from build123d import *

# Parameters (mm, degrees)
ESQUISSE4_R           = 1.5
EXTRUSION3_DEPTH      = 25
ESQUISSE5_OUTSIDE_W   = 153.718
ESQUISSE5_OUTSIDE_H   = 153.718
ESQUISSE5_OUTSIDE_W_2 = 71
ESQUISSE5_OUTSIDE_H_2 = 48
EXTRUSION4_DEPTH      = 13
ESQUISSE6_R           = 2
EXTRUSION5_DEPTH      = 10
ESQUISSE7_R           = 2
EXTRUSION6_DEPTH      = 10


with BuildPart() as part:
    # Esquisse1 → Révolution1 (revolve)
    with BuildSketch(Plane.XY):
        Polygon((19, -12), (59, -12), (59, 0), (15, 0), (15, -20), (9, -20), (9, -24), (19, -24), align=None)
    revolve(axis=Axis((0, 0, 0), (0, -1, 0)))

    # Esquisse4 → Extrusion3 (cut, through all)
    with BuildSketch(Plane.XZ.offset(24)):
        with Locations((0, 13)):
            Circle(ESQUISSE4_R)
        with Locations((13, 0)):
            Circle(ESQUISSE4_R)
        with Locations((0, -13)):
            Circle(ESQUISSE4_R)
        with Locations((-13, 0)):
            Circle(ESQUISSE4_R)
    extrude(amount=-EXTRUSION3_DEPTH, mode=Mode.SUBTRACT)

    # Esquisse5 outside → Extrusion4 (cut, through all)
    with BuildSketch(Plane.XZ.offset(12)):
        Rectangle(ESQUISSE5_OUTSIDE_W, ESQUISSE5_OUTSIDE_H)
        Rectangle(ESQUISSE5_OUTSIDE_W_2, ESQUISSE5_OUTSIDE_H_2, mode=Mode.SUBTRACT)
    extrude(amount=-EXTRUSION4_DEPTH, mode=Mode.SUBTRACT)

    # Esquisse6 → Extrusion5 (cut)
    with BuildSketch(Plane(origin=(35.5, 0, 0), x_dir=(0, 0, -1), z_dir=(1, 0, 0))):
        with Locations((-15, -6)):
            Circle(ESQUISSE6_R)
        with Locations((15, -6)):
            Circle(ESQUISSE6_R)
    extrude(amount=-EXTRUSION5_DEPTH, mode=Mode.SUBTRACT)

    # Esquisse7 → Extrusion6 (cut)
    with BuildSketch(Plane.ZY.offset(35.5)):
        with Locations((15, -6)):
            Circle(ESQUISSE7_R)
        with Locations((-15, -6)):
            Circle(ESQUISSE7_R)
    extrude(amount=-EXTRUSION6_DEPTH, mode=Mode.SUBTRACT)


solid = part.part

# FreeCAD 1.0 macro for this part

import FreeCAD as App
import Part
import Sketcher

V = App.Vector


def add_polygon(sketch, points):
    """Adds a closed chain of lines whose ends are joined by coincident constraints."""
    first, n = sketch.GeometryCount, len(points)
    for a, b in zip(points, points[1:] + points[:1]):
        sketch.addGeometry(Part.LineSegment(App.Vector(*a, 0), App.Vector(*b, 0)), False)
    for i in range(n):
        sketch.addConstraint(Sketcher.Constraint("Coincident", first + i, 2, first + (i + 1) % n, 1))

doc = App.newDocument("Part")
body = doc.addObject("PartDesign::Body", "Body")

# Sketch on XY plane
sketch1 = body.newObject("Sketcher::SketchObject", "Sketch")
sketch1.AttachmentSupport = (doc.getObject("XY_Plane"), [""])
sketch1.MapMode = "FlatFace"
add_polygon(sketch1, [(19, -12), (59, -12), (59, 0), (15, 0), (15, -20), (9, -20), (9, -24), (19, -24)])  # lines 0-7
sketch1.addConstraint(Sketcher.Constraint("Horizontal", 0))
sketch1.addConstraint(Sketcher.Constraint("Vertical", 1))
sketch1.addConstraint(Sketcher.Constraint("Horizontal", 2))
sketch1.addConstraint(Sketcher.Constraint("Vertical", 3))
sketch1.addConstraint(Sketcher.Constraint("Horizontal", 4))
sketch1.addConstraint(Sketcher.Constraint("Vertical", 5))
sketch1.addConstraint(Sketcher.Constraint("Horizontal", 6))
sketch1.addConstraint(Sketcher.Constraint("Vertical", 7))
sketch1.addConstraint(Sketcher.Constraint("PointOnObject", 1, 2, -1))
sketch1.addConstraint(Sketcher.Constraint("Equal", 1, 7))
sketch1.addConstraint(Sketcher.Constraint("DistanceX", 0, 1, 0, 2, 40.0))
sketch1.addConstraint(Sketcher.Constraint("DistanceX", 2, 2, 2, 1, 44.0))
sketch1.addConstraint(Sketcher.Constraint("DistanceX", 4, 2, 4, 1, 6.0))
sketch1.addConstraint(Sketcher.Constraint("DistanceY", 1, 1, 1, 2, 12.0))
sketch1.addConstraint(Sketcher.Constraint("DistanceY", 3, 2, 3, 1, 20.0))
sketch1.addConstraint(Sketcher.Constraint("DistanceX", -1, 1, 0, 2, 59.0))
revolution = body.newObject("PartDesign::Revolution", "Revolution")
revolution.Profile = sketch1
revolution.ReferenceAxis = (sketch1, ["V_Axis"])
revolution.Angle = 360

# Sketch on XZ plane
sketch2 = body.newObject("Sketcher::SketchObject", "Sketch001")
sketch2.AttachmentSupport = (doc.getObject("XZ_Plane"), [""])
sketch2.MapMode = "FlatFace"
sketch2.AttachmentOffset = App.Placement(V(0, 0, 24), App.Rotation())
sketch2.addGeometry(Part.Circle(V(0, 13, 0), V(0, 0, 1), 1.5), False)
sketch2.addGeometry(Part.Circle(V(13, 0, 0), V(0, 0, 1), 1.5), False)
sketch2.addGeometry(Part.Circle(V(0, -13, 0), V(0, 0, 1), 1.5), False)
sketch2.addGeometry(Part.Circle(V(-13, 0, 0), V(0, 0, 1), 1.5), False)
sketch2.addConstraint(Sketcher.Constraint("Equal", 0, 1))
sketch2.addConstraint(Sketcher.Constraint("Equal", 1, 2))
sketch2.addConstraint(Sketcher.Constraint("Equal", 2, 3))
sketch2.addConstraint(Sketcher.Constraint("Symmetric", 0, 3, 2, 3, -1, 1))
sketch2.addConstraint(Sketcher.Constraint("Symmetric", 1, 3, 3, 3, -1, 1))
sketch2.addConstraint(Sketcher.Constraint("PointOnObject", 0, 3, -2))
sketch2.addConstraint(Sketcher.Constraint("PointOnObject", 1, 3, -1))
sketch2.addConstraint(Sketcher.Constraint("Diameter", 0, 3.0))
sketch2.addConstraint(Sketcher.Constraint("DistanceY", -1, 1, 0, 3, 13.0))
sketch2.addConstraint(Sketcher.Constraint("DistanceX", -1, 1, 1, 3, 13.0))
pocket1 = body.newObject("PartDesign::Pocket", "Pocket")
pocket1.Profile = sketch2
pocket1.Type = "ThroughAll"

# Sketch on XZ plane
sketch3 = body.newObject("Sketcher::SketchObject", "Sketch002")
sketch3.AttachmentSupport = (doc.getObject("XZ_Plane"), [""])
sketch3.MapMode = "FlatFace"
sketch3.AttachmentOffset = App.Placement(V(0, 0, 12), App.Rotation())
add_polygon(sketch3, [(-77, 77), (-77, -77), (77, -77), (77, 77)])  # lines 0-3
add_polygon(sketch3, [(36, -24), (-36, -24), (-36, 24), (36, 24)])  # lines 4-7
sketch3.addConstraint(Sketcher.Constraint("Vertical", 0))
sketch3.addConstraint(Sketcher.Constraint("Horizontal", 1))
sketch3.addConstraint(Sketcher.Constraint("Vertical", 2))
sketch3.addConstraint(Sketcher.Constraint("Horizontal", 3))
sketch3.addConstraint(Sketcher.Constraint("Horizontal", 4))
sketch3.addConstraint(Sketcher.Constraint("Vertical", 5))
sketch3.addConstraint(Sketcher.Constraint("Horizontal", 6))
sketch3.addConstraint(Sketcher.Constraint("Vertical", 7))
sketch3.addConstraint(Sketcher.Constraint("Symmetric", 0, 2, 2, 2, -1, 1))
sketch3.addConstraint(Sketcher.Constraint("Symmetric", 4, 2, 6, 2, -1, 1))
sketch3.addConstraint(Sketcher.Constraint("Equal", 3, 0))
sketch3.addConstraint(Sketcher.Constraint("DistanceX", 4, 2, 4, 1, 71.0))
sketch3.addConstraint(Sketcher.Constraint("DistanceY", 5, 1, 5, 2, 48.0))
sketch3.addConstraint(Sketcher.Constraint("DistanceX", 1, 1, 1, 2, 153.718))
pocket2 = body.newObject("PartDesign::Pocket", "Pocket001")
pocket2.Profile = sketch3
pocket2.Type = "ThroughAll"

# Sketch on YZ plane
sketch4 = body.newObject("Sketcher::SketchObject", "Sketch003")
sketch4.AttachmentSupport = (doc.getObject("YZ_Plane"), [""])
sketch4.MapMode = "FlatFace"
sketch4.AttachmentOffset = App.Placement(V(0, 0, 35.5), App.Rotation())
sketch4.addGeometry(Part.Circle(V(-6, 15, 0), V(0, 0, 1), 2), False)
sketch4.addGeometry(Part.Circle(V(-6, -15, 0), V(0, 0, 1), 2), False)
sketch4.addConstraint(Sketcher.Constraint("Equal", 0, 1))
sketch4.addConstraint(Sketcher.Constraint("Symmetric", 0, 3, 1, 3, -1))
sketch4.addConstraint(Sketcher.Constraint("Diameter", 0, 4.0))
sketch4.addConstraint(Sketcher.Constraint("DistanceX", 0, 3, -1, 1, 6.0))
sketch4.addConstraint(Sketcher.Constraint("DistanceY", -1, 1, 0, 3, 15.0))
pocket3 = body.newObject("PartDesign::Pocket", "Pocket002")
pocket3.Profile = sketch4
pocket3.Length = 10

# Sketch on YZ plane
sketch5 = body.newObject("Sketcher::SketchObject", "Sketch004")
sketch5.AttachmentSupport = (doc.getObject("YZ_Plane"), [""])
sketch5.MapMode = "FlatFace"
sketch5.AttachmentOffset = App.Placement(V(0, 0, -35.5), App.Rotation())
sketch5.addGeometry(Part.Circle(V(-6, 15, 0), V(0, 0, 1), 2), False)
sketch5.addGeometry(Part.Circle(V(-6, -15, 0), V(0, 0, 1), 2), False)
sketch5.addConstraint(Sketcher.Constraint("Equal", 0, 1))
sketch5.addConstraint(Sketcher.Constraint("Symmetric", 0, 3, 1, 3, -1))
sketch5.addConstraint(Sketcher.Constraint("Diameter", 0, 4.0))
sketch5.addConstraint(Sketcher.Constraint("DistanceX", 0, 3, -1, 1, 6.0))
sketch5.addConstraint(Sketcher.Constraint("DistanceY", -1, 1, 0, 3, 15.0))
pocket4 = body.newObject("PartDesign::Pocket", "Pocket003")
pocket4.Profile = sketch5
pocket4.Length = 10
pocket4.Reversed = True

doc.recompute()
